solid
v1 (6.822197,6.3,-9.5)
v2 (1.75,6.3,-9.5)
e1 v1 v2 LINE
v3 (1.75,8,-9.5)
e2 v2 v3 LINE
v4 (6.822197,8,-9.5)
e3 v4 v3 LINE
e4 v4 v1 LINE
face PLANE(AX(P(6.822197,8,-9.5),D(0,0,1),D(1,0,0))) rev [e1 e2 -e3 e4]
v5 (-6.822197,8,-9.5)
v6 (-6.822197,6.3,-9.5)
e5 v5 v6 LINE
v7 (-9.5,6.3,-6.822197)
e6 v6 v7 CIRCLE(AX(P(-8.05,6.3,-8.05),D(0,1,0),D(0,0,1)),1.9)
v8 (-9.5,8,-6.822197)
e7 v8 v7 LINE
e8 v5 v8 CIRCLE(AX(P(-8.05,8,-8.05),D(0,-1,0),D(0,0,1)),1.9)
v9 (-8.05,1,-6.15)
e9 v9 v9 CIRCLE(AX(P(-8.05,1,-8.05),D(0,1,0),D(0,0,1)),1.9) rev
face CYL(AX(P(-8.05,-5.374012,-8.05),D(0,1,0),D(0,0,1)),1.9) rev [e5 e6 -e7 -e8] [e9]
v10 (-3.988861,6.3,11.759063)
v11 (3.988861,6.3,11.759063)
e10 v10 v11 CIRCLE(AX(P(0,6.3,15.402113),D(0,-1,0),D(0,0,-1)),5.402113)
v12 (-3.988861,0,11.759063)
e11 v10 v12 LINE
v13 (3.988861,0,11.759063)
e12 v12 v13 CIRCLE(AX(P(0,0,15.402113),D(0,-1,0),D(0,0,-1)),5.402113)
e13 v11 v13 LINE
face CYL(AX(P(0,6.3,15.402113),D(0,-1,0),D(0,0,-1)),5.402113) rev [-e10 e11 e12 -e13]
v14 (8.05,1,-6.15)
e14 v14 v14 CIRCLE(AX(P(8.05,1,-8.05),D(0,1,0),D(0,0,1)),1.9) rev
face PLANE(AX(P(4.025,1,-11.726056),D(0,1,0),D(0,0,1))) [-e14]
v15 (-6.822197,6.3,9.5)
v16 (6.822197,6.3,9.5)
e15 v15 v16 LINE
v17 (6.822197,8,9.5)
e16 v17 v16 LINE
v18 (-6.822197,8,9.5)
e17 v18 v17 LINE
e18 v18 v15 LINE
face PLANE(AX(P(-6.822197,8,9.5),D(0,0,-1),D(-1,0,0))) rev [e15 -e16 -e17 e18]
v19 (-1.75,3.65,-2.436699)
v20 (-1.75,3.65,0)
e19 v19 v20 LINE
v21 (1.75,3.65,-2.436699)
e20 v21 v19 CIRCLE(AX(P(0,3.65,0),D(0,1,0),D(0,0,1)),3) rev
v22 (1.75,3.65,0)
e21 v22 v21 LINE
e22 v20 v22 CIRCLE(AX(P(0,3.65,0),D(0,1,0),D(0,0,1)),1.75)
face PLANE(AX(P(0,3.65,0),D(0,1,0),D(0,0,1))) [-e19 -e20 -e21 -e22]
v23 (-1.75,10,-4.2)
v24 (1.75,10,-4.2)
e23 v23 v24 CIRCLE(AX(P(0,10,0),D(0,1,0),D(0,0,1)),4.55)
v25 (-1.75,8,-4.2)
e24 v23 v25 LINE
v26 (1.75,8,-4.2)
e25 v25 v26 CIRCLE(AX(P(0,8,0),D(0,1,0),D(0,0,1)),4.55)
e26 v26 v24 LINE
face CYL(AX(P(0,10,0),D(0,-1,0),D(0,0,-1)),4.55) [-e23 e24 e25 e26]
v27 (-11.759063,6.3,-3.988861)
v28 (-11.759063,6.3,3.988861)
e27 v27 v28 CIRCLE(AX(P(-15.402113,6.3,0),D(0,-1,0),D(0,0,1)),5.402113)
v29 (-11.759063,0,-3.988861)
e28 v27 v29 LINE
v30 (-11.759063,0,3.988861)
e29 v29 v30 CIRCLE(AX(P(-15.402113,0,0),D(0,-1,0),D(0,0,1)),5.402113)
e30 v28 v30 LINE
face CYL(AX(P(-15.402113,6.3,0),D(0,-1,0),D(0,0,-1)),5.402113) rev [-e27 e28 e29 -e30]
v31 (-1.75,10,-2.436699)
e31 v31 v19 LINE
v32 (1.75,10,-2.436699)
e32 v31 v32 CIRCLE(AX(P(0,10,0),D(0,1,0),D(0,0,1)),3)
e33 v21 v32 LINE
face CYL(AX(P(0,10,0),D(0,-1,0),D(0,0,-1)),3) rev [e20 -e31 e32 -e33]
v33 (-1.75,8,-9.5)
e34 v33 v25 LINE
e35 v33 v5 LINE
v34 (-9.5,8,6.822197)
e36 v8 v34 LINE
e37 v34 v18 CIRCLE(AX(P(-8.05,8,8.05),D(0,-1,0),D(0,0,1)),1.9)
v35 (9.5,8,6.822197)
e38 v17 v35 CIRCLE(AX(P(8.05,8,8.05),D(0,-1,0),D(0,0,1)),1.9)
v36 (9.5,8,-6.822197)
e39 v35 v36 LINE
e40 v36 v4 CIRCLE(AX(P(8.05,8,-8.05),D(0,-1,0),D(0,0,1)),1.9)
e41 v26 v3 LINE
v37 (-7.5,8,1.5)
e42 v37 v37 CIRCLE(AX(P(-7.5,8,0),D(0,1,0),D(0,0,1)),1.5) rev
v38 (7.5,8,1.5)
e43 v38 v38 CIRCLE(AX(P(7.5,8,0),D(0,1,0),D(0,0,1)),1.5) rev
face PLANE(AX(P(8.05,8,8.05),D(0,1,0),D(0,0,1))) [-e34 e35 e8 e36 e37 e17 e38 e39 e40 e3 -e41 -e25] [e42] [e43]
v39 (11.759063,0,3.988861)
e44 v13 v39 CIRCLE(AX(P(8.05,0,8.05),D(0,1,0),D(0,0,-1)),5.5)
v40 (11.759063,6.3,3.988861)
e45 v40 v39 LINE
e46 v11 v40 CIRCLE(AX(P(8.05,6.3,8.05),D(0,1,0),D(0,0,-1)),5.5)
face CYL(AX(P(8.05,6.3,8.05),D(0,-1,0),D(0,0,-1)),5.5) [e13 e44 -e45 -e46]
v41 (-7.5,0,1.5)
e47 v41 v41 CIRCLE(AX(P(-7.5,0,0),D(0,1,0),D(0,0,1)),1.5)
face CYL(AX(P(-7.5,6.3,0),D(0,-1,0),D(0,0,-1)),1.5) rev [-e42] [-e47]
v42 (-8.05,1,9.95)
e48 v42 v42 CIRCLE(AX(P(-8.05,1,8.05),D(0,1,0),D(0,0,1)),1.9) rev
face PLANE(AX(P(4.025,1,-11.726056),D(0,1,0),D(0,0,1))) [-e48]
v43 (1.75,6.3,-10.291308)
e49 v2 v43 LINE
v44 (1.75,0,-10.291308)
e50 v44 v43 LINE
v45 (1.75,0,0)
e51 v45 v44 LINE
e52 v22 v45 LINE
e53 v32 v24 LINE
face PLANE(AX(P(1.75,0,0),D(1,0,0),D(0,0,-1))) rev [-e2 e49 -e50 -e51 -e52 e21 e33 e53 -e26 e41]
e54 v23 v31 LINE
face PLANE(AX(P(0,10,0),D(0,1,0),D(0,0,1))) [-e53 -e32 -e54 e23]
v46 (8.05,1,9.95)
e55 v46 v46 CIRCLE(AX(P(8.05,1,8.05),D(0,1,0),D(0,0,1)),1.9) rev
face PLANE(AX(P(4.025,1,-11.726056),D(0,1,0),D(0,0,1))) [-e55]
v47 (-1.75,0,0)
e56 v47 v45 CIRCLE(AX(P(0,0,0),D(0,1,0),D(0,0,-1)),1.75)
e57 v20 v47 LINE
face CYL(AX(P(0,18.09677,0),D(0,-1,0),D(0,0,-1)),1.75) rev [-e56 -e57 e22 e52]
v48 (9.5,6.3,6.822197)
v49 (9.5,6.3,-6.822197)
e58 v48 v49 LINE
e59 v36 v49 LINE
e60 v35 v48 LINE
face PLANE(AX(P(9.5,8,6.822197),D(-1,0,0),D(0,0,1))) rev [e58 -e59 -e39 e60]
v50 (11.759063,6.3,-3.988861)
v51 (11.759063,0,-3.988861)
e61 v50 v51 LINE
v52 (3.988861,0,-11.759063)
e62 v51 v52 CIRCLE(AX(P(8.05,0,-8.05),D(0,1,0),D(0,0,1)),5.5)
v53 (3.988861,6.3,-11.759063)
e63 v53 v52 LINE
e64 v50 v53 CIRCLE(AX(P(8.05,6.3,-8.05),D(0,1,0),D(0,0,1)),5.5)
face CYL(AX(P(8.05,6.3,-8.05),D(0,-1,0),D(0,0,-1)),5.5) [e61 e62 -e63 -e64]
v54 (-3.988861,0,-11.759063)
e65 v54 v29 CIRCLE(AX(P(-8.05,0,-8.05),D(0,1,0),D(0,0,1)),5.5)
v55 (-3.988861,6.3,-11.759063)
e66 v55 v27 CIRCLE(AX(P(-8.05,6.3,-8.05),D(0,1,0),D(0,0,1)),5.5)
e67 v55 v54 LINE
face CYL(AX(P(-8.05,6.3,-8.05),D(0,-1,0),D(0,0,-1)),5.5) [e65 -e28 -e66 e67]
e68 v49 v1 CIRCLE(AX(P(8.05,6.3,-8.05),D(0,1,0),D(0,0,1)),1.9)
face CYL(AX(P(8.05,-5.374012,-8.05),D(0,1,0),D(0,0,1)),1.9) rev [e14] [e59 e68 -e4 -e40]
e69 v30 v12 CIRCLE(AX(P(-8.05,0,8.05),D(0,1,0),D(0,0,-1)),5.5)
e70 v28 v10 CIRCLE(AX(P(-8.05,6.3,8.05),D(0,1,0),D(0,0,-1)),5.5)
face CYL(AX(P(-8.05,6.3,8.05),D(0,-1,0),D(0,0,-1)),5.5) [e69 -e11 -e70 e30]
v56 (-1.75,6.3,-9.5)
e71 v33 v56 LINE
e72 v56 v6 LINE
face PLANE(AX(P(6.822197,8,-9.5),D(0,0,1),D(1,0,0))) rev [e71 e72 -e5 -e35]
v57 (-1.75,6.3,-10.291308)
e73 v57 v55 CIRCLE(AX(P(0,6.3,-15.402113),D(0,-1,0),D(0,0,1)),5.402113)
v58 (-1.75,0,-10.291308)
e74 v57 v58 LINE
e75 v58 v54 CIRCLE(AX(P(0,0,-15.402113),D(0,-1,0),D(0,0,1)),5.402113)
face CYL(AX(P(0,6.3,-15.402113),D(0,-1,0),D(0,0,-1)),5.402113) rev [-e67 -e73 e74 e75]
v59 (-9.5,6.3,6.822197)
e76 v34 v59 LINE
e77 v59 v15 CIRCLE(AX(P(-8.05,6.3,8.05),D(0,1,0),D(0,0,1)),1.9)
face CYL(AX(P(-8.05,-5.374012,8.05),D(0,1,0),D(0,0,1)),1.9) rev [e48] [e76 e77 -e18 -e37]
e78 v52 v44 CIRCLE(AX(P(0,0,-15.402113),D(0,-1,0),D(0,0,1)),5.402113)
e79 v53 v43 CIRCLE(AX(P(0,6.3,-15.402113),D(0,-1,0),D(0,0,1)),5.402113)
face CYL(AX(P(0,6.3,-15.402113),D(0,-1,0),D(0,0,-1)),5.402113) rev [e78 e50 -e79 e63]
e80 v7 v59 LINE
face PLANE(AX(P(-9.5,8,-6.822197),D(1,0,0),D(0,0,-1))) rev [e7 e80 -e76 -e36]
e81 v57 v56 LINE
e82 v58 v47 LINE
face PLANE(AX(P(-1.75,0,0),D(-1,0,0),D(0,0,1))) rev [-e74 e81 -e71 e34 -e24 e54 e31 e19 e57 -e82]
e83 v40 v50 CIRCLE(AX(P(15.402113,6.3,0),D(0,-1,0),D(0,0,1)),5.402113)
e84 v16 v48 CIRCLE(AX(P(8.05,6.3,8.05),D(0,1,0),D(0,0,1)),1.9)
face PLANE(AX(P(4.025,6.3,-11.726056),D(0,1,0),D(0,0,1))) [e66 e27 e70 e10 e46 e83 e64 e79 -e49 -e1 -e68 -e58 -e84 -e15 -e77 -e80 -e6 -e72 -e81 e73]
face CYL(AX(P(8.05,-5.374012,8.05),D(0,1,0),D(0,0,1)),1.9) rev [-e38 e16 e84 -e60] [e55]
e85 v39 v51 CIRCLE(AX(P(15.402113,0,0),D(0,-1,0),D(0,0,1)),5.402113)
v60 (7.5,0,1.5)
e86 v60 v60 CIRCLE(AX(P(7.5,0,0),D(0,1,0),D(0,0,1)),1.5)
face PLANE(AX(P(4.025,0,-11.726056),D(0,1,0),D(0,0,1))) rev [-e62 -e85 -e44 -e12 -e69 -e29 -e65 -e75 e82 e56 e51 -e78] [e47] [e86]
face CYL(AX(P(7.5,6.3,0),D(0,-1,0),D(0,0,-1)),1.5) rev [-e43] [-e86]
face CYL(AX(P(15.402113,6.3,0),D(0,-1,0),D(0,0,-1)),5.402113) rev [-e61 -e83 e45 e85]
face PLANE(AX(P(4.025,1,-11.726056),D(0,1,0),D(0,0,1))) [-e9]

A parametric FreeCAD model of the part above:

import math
import FreeCAD as App
import Part
import Sketcher

V = App.Vector

doc = App.newDocument("Part")
body = doc.addObject("PartDesign::Body", "Body")

# Sketch on XZ plane
sketch1 = body.newObject("Sketcher::SketchObject", "Sketch")
sketch1.AttachmentSupport = (doc.getObject("XZ_Plane"), [""])
sketch1.MapMode = "FlatFace"
sketch1.addGeometry([
    Part.ArcOfCircle(Part.Circle(V(-8.1, 8.1, 0), V(0, 0, 1), 5.5), math.radians(42), math.radians(228)),  # 0
    Part.ArcOfCircle(Part.Circle(V(0, 15.4, 0), V(0, 0, 1), 5.4), math.radians(-138), math.radians(-42)),  # 1
    Part.ArcOfCircle(Part.Circle(V(8.1, 8.1, 0), V(0, 0, 1), 5.5), math.radians(-48), math.radians(138)),  # 2
    Part.ArcOfCircle(Part.Circle(V(15.4, 0, 0), V(0, 0, 1), 5.4), math.radians(132), math.radians(228)),  # 3
    Part.ArcOfCircle(Part.Circle(V(8.1, -8.1, 0), V(0, 0, 1), 5.5), math.radians(-138), math.radians(48)),  # 4
    Part.ArcOfCircle(Part.Circle(V(0, -15.4, 0), V(0, 0, 1), 5.4), math.radians(42), math.radians(138)),  # 5
    Part.ArcOfCircle(Part.Circle(V(-8.1, -8.1, 0), V(0, 0, 1), 5.5), math.radians(132), math.radians(318)),  # 6
    Part.ArcOfCircle(Part.Circle(V(-15.4, 0, 0), V(0, 0, 1), 5.4), math.radians(-48), math.radians(48)),  # 7
    Part.Circle(V(7.5, 0, 0), V(0, 0, 1), 1.5),  # 8
    Part.Circle(V(-7.5, 0, 0), V(0, 0, 1), 1.5),  # 9
], False)
sketch1.addConstraint([
    Sketcher.Constraint("Tangent", 0, 1, 1, 1),
    Sketcher.Constraint("Tangent", 1, 2, 2, 2),
    Sketcher.Constraint("Tangent", 2, 1, 3, 1),
    Sketcher.Constraint("Tangent", 3, 2, 4, 2),
    Sketcher.Constraint("Tangent", 4, 1, 5, 1),
    Sketcher.Constraint("Tangent", 5, 2, 6, 2),
    Sketcher.Constraint("Tangent", 6, 1, 7, 1),
    Sketcher.Constraint("Tangent", 7, 2, 0, 2),
    Sketcher.Constraint("Equal", 0, 2),
    Sketcher.Constraint("Equal", 1, 3),
    Sketcher.Constraint("Equal", 2, 4),
    Sketcher.Constraint("Equal", 3, 5),
    Sketcher.Constraint("Equal", 4, 6),
    Sketcher.Constraint("Equal", 5, 7),
    Sketcher.Constraint("Equal", 8, 9),
    Sketcher.Constraint("Symmetric", 0, 3, 4, 3, -1, 1),
    Sketcher.Constraint("Symmetric", 2, 3, 6, 3, -1, 1),
    Sketcher.Constraint("Symmetric", 8, 3, 9, 3, -1, 1),
    Sketcher.Constraint("Symmetric", 0, 3, 2, 3, -2),
    Sketcher.Constraint("PointOnObject", 8, 3, -1),
    Sketcher.Constraint("Diameter", 8, 3.0),
    Sketcher.Constraint("Radius", 0, 5.5),
    Sketcher.Constraint("DistanceX", 9, 3, 8, 3, 15.0),
    Sketcher.Constraint("DistanceX", 0, 3, 2, 3, 16.1),
    Sketcher.Constraint("DistanceY", 4, 3, 2, 3, 16.1),
    Sketcher.Constraint("Radius", 1, 5.402113),
])
pad1 = body.newObject("PartDesign::Pad", "Pad")
pad1.Profile = sketch1
pad1.Length = 6.3
pad1.Reversed = True

# Sketch on XZ plane
sketch2 = body.newObject("Sketcher::SketchObject", "Sketch001")
sketch2.AttachmentSupport = (doc.getObject("XZ_Plane"), [""])
sketch2.MapMode = "FlatFace"
sketch2.AttachmentOffset = App.Placement(V(0, 0, -6.3), App.Rotation())
sketch2.addGeometry([
    Part.Circle(V(-8.1, -8.1, 0), V(0, 0, 1), 1.9),
    Part.Circle(V(8.1, -8.1, 0), V(0, 0, 1), 1.9),
    Part.Circle(V(8.1, 8.1, 0), V(0, 0, 1), 1.9),
    Part.Circle(V(-8.1, 8.1, 0), V(0, 0, 1), 1.9),
], False)
sketch2.addConstraint([
    Sketcher.Constraint("Equal", 0, 1),
    Sketcher.Constraint("Equal", 1, 2),
    Sketcher.Constraint("Equal", 2, 3),
    Sketcher.Constraint("Symmetric", 0, 3, 2, 3, -1, 1),
    Sketcher.Constraint("Symmetric", 1, 3, 3, 3, -1, 1),
    Sketcher.Constraint("Symmetric", 0, 3, 1, 3, -2),
    Sketcher.Constraint("Diameter", 0, 3.8),
    Sketcher.Constraint("DistanceX", 0, 3, 1, 3, 16.1),
    Sketcher.Constraint("DistanceY", 1, 3, 2, 3, 16.1),
])
pocket1 = body.newObject("PartDesign::Pocket", "Pocket")
pocket1.Profile = sketch2
pocket1.Length = 5.3
pocket1.Reversed = True

# Sketch on XZ plane
sketch3 = body.newObject("Sketcher::SketchObject", "Sketch002")
sketch3.AttachmentSupport = (doc.getObject("XZ_Plane"), [""])
sketch3.MapMode = "FlatFace"
sketch3.AttachmentOffset = App.Placement(V(0, 0, -8), App.Rotation())
sketch3.addGeometry([
    Part.LineSegment(V(-9.5, -6.8, 0), V(-9.5, 6.8, 0)),  # 0
    Part.ArcOfCircle(Part.Circle(V(-8.1, 8.1, 0), V(0, 0, 1), 1.9), math.radians(-140), math.radians(50)),  # 1
    Part.LineSegment(V(-6.8, 9.5, 0), V(6.8, 9.5, 0)),  # 2
    Part.ArcOfCircle(Part.Circle(V(8.1, 8.1, 0), V(0, 0, 1), 1.9), math.radians(130), math.radians(320)),  # 3
    Part.LineSegment(V(9.5, 6.8, 0), V(9.5, -6.8, 0)),  # 4
    Part.ArcOfCircle(Part.Circle(V(8.1, -8.1, 0), V(0, 0, 1), 1.9), math.radians(40), math.radians(230)),  # 5
    Part.LineSegment(V(6.8, -9.5, 0), V(-6.8, -9.5, 0)),  # 6
    Part.ArcOfCircle(Part.Circle(V(-8.1, -8.1, 0), V(0, 0, 1), 1.9), math.radians(-50), math.radians(140)),  # 7
], False)
sketch3.addConstraint([
    Sketcher.Constraint("Coincident", 0, 2, 1, 1),
    Sketcher.Constraint("Coincident", 1, 2, 2, 1),
    Sketcher.Constraint("Coincident", 2, 2, 3, 1),
    Sketcher.Constraint("Coincident", 3, 2, 4, 1),
    Sketcher.Constraint("Coincident", 4, 2, 5, 1),
    Sketcher.Constraint("Coincident", 5, 2, 6, 1),
    Sketcher.Constraint("Coincident", 6, 2, 7, 1),
    Sketcher.Constraint("Coincident", 7, 2, 0, 1),
    Sketcher.Constraint("Vertical", 0),
    Sketcher.Constraint("Horizontal", 2),
    Sketcher.Constraint("Vertical", 4),
    Sketcher.Constraint("Horizontal", 6),
    Sketcher.Constraint("Equal", 1, 3),
    Sketcher.Constraint("Equal", 3, 5),
    Sketcher.Constraint("Equal", 5, 7),
    Sketcher.Constraint("Symmetric", 1, 3, 5, 3, -1, 1),
    Sketcher.Constraint("Symmetric", 3, 3, 7, 3, -1, 1),
    Sketcher.Constraint("Symmetric", 1, 3, 3, 3, -2),
    Sketcher.Constraint("Horizontal", 0, 2, 3, 2),
    Sketcher.Constraint("Vertical", 2, 2, 5, 2),
    Sketcher.Constraint("Equal", 6, 0),
    Sketcher.Constraint("Radius", 1, 1.9),
    Sketcher.Constraint("DistanceX", 0, 2, -1, 1, 9.5),
    Sketcher.Constraint("DistanceY", -1, 1, 1, 2, 9.5),
    Sketcher.Constraint("DistanceX", 1, 3, 3, 3, 16.1),
])
pad2 = body.newObject("PartDesign::Pad", "Pad001")
pad2.Profile = sketch3
pad2.Length = 1.7

# Sketch on XZ plane
sketch4 = body.newObject("Sketcher::SketchObject", "Sketch003")
sketch4.AttachmentSupport = (doc.getObject("XZ_Plane"), [""])
sketch4.MapMode = "FlatFace"
sketch4.AttachmentOffset = App.Placement(V(0, 0, -8), App.Rotation())
sketch4.addGeometry(Part.Circle(V(0, 0, 0), V(0, 0, 1), 4.5), False)
sketch4.addConstraint([
    Sketcher.Constraint("Coincident", 0, 3, -1, 1),
    Sketcher.Constraint("Diameter", 0, 9.1),
])
pad3 = body.newObject("PartDesign::Pad", "Pad002")
pad3.Profile = sketch4
pad3.Length = 2
pad3.Reversed = True

# Sketch on XZ plane
sketch5 = body.newObject("Sketcher::SketchObject", "Sketch004")
sketch5.AttachmentSupport = (doc.getObject("XZ_Plane"), [""])
sketch5.MapMode = "FlatFace"
sketch5.addGeometry([
    Part.Circle(V(-7.5, 0, 0), V(0, 0, 1), 1.5),
    Part.Circle(V(0, 0, 0), V(0, 0, 1), 3),
    Part.Circle(V(7.5, 0, 0), V(0, 0, 1), 1.5),
], False)
sketch5.addConstraint([
    Sketcher.Constraint("Coincident", 1, 3, -1, 1),
    Sketcher.Constraint("Equal", 0, 2),
    Sketcher.Constraint("Symmetric", 0, 3, 2, 3, -1, 1),
    Sketcher.Constraint("PointOnObject", 0, 3, -1),
    Sketcher.Constraint("Diameter", 0, 3.0),
    Sketcher.Constraint("Diameter", 1, 6.0),
    Sketcher.Constraint("DistanceX", 0, 3, 2, 3, 15.0),
])
pocket2 = body.newObject("PartDesign::Pocket", "Pocket001")
pocket2.Profile = sketch5
pocket2.Type = "ThroughAll"

# Sketch on XZ plane
sketch6 = body.newObject("Sketcher::SketchObject", "Sketch005")
sketch6.AttachmentSupport = (doc.getObject("XZ_Plane"), [""])
sketch6.MapMode = "FlatFace"
sketch6.AttachmentOffset = App.Placement(V(0, 0, -10), App.Rotation())
sketch6.addGeometry([
    Part.LineSegment(V(-1.8, -12, 0), V(-1.8, 0, 0)),
    Part.ArcOfCircle(Part.Circle(V(0, 0, 0), V(0, 0, 1), 1.8), math.radians(0), math.radians(180)),
    Part.LineSegment(V(1.8, 0, 0), V(1.8, -12, 0)),
    Part.ArcOfCircle(Part.Circle(V(0, -12, 0), V(0, 0, 1), 1.8), math.radians(180), math.radians(360)),
], False)
sketch6.addConstraint([
    Sketcher.Constraint("Tangent", 0, 2, 1, 2),
    Sketcher.Constraint("Tangent", 1, 1, 2, 1),
    Sketcher.Constraint("Tangent", 2, 2, 3, 2),
    Sketcher.Constraint("Tangent", 3, 1, 0, 1),
    Sketcher.Constraint("Vertical", 0),
    Sketcher.Constraint("Vertical", 2),
    Sketcher.Constraint("Coincident", 1, 3, -1, 1),
    Sketcher.Constraint("DistanceY", 0, 1, 0, 2, 12.0),
    Sketcher.Constraint("Radius", 1, 1.75),
])
pocket3 = body.newObject("PartDesign::Pocket", "Pocket002")
pocket3.Profile = sketch6
pocket3.Type = "ThroughAll"
pocket3.Reversed = True

# Sketch on XZ plane
sketch7 = body.newObject("Sketcher::SketchObject", "Sketch006")
sketch7.AttachmentSupport = (doc.getObject("XZ_Plane"), [""])
sketch7.MapMode = "FlatFace"
sketch7.addGeometry([
    Part.LineSegment(V(-1.8, -2.4, 0), V(-1.8, 0, 0)),
    Part.ArcOfCircle(Part.Circle(V(0, 0, 0), V(0, 0, 1), 1.8), math.radians(0), math.radians(180)),
    Part.LineSegment(V(1.8, 0, 0), V(1.8, -2.4, 0)),
    Part.ArcOfCircle(Part.Circle(V(0, 0, 0), V(0, 0, 1), 3), math.radians(-54), math.radians(234)),
], False)
sketch7.addConstraint([
    Sketcher.Constraint("Tangent", 0, 2, 1, 2),
    Sketcher.Constraint("Tangent", 1, 1, 2, 1),
    Sketcher.Constraint("Coincident", 2, 2, 3, 1),
    Sketcher.Constraint("Coincident", 3, 2, 0, 1),
    Sketcher.Constraint("Vertical", 0),
    Sketcher.Constraint("Vertical", 2),
    Sketcher.Constraint("Coincident", 1, 3, -1, 1),
    Sketcher.Constraint("Coincident", 3, 3, -1, 1),
    Sketcher.Constraint("Radius", 3, 3.0),
    Sketcher.Constraint("Radius", 1, 1.75),
])
pad4 = body.newObject("PartDesign::Pad", "Pad003")
pad4.Profile = sketch7
pad4.Length = 3.65
pad4.Reversed = True

doc.recompute()
